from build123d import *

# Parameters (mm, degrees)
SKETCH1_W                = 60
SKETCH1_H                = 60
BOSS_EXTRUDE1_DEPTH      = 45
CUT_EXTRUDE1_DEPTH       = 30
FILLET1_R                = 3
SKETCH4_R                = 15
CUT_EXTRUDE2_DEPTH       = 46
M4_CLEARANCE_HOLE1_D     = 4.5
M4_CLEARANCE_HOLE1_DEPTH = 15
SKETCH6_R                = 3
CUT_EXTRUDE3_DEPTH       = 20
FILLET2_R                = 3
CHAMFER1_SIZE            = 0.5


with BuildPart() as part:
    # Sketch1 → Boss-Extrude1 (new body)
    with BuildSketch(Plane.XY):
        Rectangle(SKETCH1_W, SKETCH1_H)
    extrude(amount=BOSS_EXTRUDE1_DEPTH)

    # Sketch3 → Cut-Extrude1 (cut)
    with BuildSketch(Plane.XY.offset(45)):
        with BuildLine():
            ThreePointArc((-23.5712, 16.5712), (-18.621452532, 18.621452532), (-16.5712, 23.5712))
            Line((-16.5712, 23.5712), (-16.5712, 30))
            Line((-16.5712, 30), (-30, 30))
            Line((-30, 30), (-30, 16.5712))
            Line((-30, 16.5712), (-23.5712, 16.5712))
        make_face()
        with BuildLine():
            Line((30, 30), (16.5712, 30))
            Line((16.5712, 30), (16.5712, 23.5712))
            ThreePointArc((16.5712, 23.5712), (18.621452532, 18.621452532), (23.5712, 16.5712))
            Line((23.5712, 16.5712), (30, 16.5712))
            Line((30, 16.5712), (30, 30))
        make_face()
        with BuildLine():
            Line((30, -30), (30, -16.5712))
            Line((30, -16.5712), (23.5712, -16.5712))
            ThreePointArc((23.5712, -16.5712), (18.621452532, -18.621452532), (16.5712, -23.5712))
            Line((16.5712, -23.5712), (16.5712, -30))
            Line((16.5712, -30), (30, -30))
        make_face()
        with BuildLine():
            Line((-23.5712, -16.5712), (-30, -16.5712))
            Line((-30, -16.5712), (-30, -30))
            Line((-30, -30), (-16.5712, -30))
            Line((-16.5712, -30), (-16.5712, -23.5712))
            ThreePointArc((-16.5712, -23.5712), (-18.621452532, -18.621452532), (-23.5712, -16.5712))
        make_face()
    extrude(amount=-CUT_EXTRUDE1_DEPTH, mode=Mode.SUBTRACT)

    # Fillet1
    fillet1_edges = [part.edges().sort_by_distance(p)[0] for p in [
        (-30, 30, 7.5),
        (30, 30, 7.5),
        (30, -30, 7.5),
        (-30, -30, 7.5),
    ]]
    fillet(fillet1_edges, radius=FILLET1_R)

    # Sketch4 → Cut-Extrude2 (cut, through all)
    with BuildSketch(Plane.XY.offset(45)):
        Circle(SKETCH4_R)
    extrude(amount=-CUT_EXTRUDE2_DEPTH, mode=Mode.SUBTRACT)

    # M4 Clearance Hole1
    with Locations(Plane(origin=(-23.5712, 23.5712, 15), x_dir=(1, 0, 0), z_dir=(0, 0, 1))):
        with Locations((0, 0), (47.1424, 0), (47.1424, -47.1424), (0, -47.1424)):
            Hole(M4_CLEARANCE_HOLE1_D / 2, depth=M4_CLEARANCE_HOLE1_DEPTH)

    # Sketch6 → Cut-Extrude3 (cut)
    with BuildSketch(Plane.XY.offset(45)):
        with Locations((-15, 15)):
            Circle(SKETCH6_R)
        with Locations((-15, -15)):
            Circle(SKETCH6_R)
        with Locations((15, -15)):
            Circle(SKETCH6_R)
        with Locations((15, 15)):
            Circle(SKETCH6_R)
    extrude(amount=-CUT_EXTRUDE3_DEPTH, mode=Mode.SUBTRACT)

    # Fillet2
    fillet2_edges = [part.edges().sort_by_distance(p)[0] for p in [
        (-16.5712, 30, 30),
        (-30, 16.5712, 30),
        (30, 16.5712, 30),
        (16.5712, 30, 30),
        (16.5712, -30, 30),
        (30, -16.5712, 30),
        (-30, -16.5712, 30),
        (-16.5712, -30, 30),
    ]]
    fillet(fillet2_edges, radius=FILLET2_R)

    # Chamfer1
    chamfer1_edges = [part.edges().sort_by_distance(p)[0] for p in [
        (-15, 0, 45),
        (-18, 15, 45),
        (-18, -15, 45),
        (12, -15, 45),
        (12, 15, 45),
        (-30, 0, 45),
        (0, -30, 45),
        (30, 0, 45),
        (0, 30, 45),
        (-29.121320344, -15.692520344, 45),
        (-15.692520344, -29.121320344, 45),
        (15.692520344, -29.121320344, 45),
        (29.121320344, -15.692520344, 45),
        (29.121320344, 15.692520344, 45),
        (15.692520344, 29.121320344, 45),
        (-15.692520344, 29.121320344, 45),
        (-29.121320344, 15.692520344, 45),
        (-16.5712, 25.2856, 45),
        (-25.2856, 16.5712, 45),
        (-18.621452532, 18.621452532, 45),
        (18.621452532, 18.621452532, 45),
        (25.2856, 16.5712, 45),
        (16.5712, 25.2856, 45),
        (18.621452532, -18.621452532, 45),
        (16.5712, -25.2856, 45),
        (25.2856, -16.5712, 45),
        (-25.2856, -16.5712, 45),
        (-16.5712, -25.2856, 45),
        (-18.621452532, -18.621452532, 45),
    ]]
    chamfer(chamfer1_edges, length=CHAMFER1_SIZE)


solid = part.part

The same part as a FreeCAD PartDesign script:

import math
import FreeCAD as App
import Part
import Sketcher

V = App.Vector


def edges_at(feature, points):
    """Names of the edges that pass closest to the given points."""
    edges = feature.Shape.Edges
    near = lambda p: min(range(len(edges)), key=lambda i: edges[i].distToShape(Part.Vertex(*p))[0])
    return sorted({f"Edge{near(p) + 1}" for p in points})


def add_polygon(sketch, points):
    """Adds a closed chain of lines whose ends are joined by coincident constraints."""
    first, n = sketch.GeometryCount, len(points)
    for a, b in zip(points, points[1:] + points[:1]):
        sketch.addGeometry(Part.LineSegment(App.Vector(*a, 0), App.Vector(*b, 0)), False)
    for i in range(n):
        sketch.addConstraint(Sketcher.Constraint("Coincident", first + i, 2, first + (i + 1) % n, 1))

doc = App.newDocument("Part")
body = doc.addObject("PartDesign::Body", "Body")

sketch1 = doc.addObject("Sketcher::SketchObject", "Sketch")
body.addObject(sketch1)
sketch1.AttachmentSupport = (doc.XY_Plane, [""])
sketch1.MapMode = "FlatFace"
add_polygon(sketch1, [(-30, 30), (-30, -30), (30, -30), (30, 30)])
sketch1.addConstraint(Sketcher.Constraint("Vertical", 0))
sketch1.addConstraint(Sketcher.Constraint("Horizontal", 1))
sketch1.addConstraint(Sketcher.Constraint("Vertical", 2))
sketch1.addConstraint(Sketcher.Constraint("Horizontal", 3))
sketch1.addConstraint(Sketcher.Constraint("Symmetric", 0, 2, 2, 2, -1, 1))
sketch1.addConstraint(Sketcher.Constraint("Equal", 3, 0))
sketch1.addConstraint(Sketcher.Constraint("DistanceX", 1, 1, 1, 2, 60.0))
pad1 = doc.addObject("PartDesign::Pad", "Pad")
body.addObject(pad1)
pad1.Profile = sketch1
pad1.Length = 45

sketch2 = doc.addObject("Sketcher::SketchObject", "Sketch001")
body.addObject(sketch2)
sketch2.AttachmentSupport = (doc.XY_Plane, [""])
sketch2.MapMode = "FlatFace"
sketch2.AttachmentOffset = App.Placement(V(0, 0, 45), App.Rotation())
sketch2.addGeometry(Part.ArcOfCircle(Part.Circle(V(-24, 24, 0), V(0, 0, 1), 7), math.radians(-90), math.radians(0)), False)
sketch2.addGeometry(Part.LineSegment(V(-17, 24, 0), V(-17, 30, 0)), False)
sketch2.addGeometry(Part.LineSegment(V(-17, 30, 0), V(-30, 30, 0)), False)
sketch2.addGeometry(Part.LineSegment(V(-30, 30, 0), V(-30, 17, 0)), False)
sketch2.addGeometry(Part.LineSegment(V(-30, 17, 0), V(-24, 17, 0)), False)
sketch2.addGeometry(Part.LineSegment(V(30, 30, 0), V(17, 30, 0)), False)
sketch2.addGeometry(Part.LineSegment(V(17, 30, 0), V(17, 24, 0)), False)
sketch2.addGeometry(Part.ArcOfCircle(Part.Circle(V(24, 24, 0), V(0, 0, 1), 7), math.radians(-180), math.radians(-90)), False)
sketch2.addGeometry(Part.LineSegment(V(24, 17, 0), V(30, 17, 0)), False)
sketch2.addGeometry(Part.LineSegment(V(30, 17, 0), V(30, 30, 0)), False)
sketch2.addGeometry(Part.LineSegment(V(30, -30, 0), V(30, -17, 0)), False)
sketch2.addGeometry(Part.LineSegment(V(30, -17, 0), V(24, -17, 0)), False)
sketch2.addGeometry(Part.ArcOfCircle(Part.Circle(V(24, -24, 0), V(0, 0, 1), 7), math.radians(90), math.radians(180)), False)
sketch2.addGeometry(Part.LineSegment(V(17, -24, 0), V(17, -30, 0)), False)
sketch2.addGeometry(Part.LineSegment(V(17, -30, 0), V(30, -30, 0)), False)
sketch2.addGeometry(Part.LineSegment(V(-24, -17, 0), V(-30, -17, 0)), False)
sketch2.addGeometry(Part.LineSegment(V(-30, -17, 0), V(-30, -30, 0)), False)
sketch2.addGeometry(Part.LineSegment(V(-30, -30, 0), V(-17, -30, 0)), False)
sketch2.addGeometry(Part.LineSegment(V(-17, -30, 0), V(-17, -24, 0)), False)
sketch2.addGeometry(Part.ArcOfCircle(Part.Circle(V(-24, -24, 0), V(0, 0, 1), 7), math.radians(0), math.radians(90)), False)
sketch2.addConstraint(Sketcher.Constraint("Tangent", 0, 2, 1, 1))
sketch2.addConstraint(Sketcher.Constraint("Coincident", 1, 2, 2, 1))
sketch2.addConstraint(Sketcher.Constraint("Coincident", 2, 2, 3, 1))
sketch2.addConstraint(Sketcher.Constraint("Coincident", 3, 2, 4, 1))
sketch2.addConstraint(Sketcher.Constraint("Tangent", 4, 2, 0, 1))
sketch2.addConstraint(Sketcher.Constraint("Coincident", 5, 2, 6, 1))
sketch2.addConstraint(Sketcher.Constraint("Tangent", 6, 2, 7, 1))
sketch2.addConstraint(Sketcher.Constraint("Tangent", 7, 2, 8, 1))
sketch2.addConstraint(Sketcher.Constraint("Coincident", 8, 2, 9, 1))
sketch2.addConstraint(Sketcher.Constraint("Coincident", 9, 2, 5, 1))
sketch2.addConstraint(Sketcher.Constraint("Coincident", 10, 2, 11, 1))
sketch2.addConstraint(Sketcher.Constraint("Tangent", 11, 2, 12, 1))
sketch2.addConstraint(Sketcher.Constraint("Tangent", 12, 2, 13, 1))
sketch2.addConstraint(Sketcher.Constraint("Coincident", 13, 2, 14, 1))
sketch2.addConstraint(Sketcher.Constraint("Coincident", 14, 2, 10, 1))
sketch2.addConstraint(Sketcher.Constraint("Coincident", 15, 2, 16, 1))
sketch2.addConstraint(Sketcher.Constraint("Coincident", 16, 2, 17, 1))
sketch2.addConstraint(Sketcher.Constraint("Coincident", 17, 2, 18, 1))
sketch2.addConstraint(Sketcher.Constraint("Tangent", 18, 2, 19, 1))
sketch2.addConstraint(Sketcher.Constraint("Tangent", 19, 2, 15, 1))
sketch2.addConstraint(Sketcher.Constraint("Vertical", 1))
sketch2.addConstraint(Sketcher.Constraint("Horizontal", 2))
sketch2.addConstraint(Sketcher.Constraint("Vertical", 3))
sketch2.addConstraint(Sketcher.Constraint("Horizontal", 4))
sketch2.addConstraint(Sketcher.Constraint("Horizontal", 5))
sketch2.addConstraint(Sketcher.Constraint("Vertical", 6))
sketch2.addConstraint(Sketcher.Constraint("Horizontal", 8))
sketch2.addConstraint(Sketcher.Constraint("Vertical", 9))
sketch2.addConstraint(Sketcher.Constraint("Vertical", 10))
sketch2.addConstraint(Sketcher.Constraint("Horizontal", 11))
sketch2.addConstraint(Sketcher.Constraint("Vertical", 13))
sketch2.addConstraint(Sketcher.Constraint("Horizontal", 14))
sketch2.addConstraint(Sketcher.Constraint("Horizontal", 15))
sketch2.addConstraint(Sketcher.Constraint("Vertical", 16))
sketch2.addConstraint(Sketcher.Constraint("Horizontal", 17))
sketch2.addConstraint(Sketcher.Constraint("Vertical", 18))
sketch2.addConstraint(Sketcher.Constraint("Equal", 0, 7))
sketch2.addConstraint(Sketcher.Constraint("Equal", 7, 12))
sketch2.addConstraint(Sketcher.Constraint("Equal", 12, 19))
sketch2.addConstraint(Sketcher.Constraint("Symmetric", 0, 3, 12, 3, -1, 1))
sketch2.addConstraint(Sketcher.Constraint("Symmetric", 7, 3, 19, 3, -1, 1))
sketch2.addConstraint(Sketcher.Constraint("Symmetric", 2, 2, 14, 2, -1, 1))
sketch2.addConstraint(Sketcher.Constraint("Symmetric", 9, 2, 16, 2, -1, 1))
sketch2.addConstraint(Sketcher.Constraint("Symmetric", 0, 3, 7, 3, -2))
sketch2.addConstraint(Sketcher.Constraint("Symmetric", 2, 2, 9, 2, -2))
sketch2.addConstraint(Sketcher.Constraint("Equal", 15, 1))
sketch2.addConstraint(Sketcher.Constraint("Radius", 0, 7.0))
sketch2.addConstraint(Sketcher.Constraint("DistanceY", -1, 1, 1, 2, 30.0))
sketch2.addConstraint(Sketcher.Constraint("DistanceX", 2, 2, -1, 1, 30.0))
sketch2.addConstraint(Sketcher.Constraint("DistanceX", 2, 2, 2, 1, 13.4288))
pocket1 = doc.addObject("PartDesign::Pocket", "Pocket")
body.addObject(pocket1)
pocket1.Profile = sketch2
pocket1.Length = 30
doc.recompute()

fillet = doc.addObject("PartDesign::Fillet", "Fillet")
body.addObject(fillet)
fillet.Base = (pocket1, edges_at(pocket1, [
    (-30, 30, 7.5),
    (30, 30, 7.5),
    (30, -30, 7.5),
    (-30, -30, 7.5),
]))
fillet.Radius = 3

sketch3 = doc.addObject("Sketcher::SketchObject", "Sketch002")
body.addObject(sketch3)
sketch3.AttachmentSupport = (doc.XY_Plane, [""])
sketch3.MapMode = "FlatFace"
sketch3.AttachmentOffset = App.Placement(V(0, 0, 45), App.Rotation())
sketch3.addGeometry(Part.Circle(V(0, 0, 0), V(0, 0, 1), 15), False)
sketch3.addConstraint(Sketcher.Constraint("Coincident", 0, 3, -1, 1))
sketch3.addConstraint(Sketcher.Constraint("Diameter", 0, 30.0))
pocket2 = doc.addObject("PartDesign::Pocket", "Pocket001")
body.addObject(pocket2)
pocket2.Profile = sketch3
pocket2.Type = "ThroughAll"

sketch4 = doc.addObject("Sketcher::SketchObject", "Sketch003")
body.addObject(sketch4)
sketch4.AttachmentSupport = (doc.XY_Plane, [""])
sketch4.MapMode = "FlatFace"
sketch4.AttachmentOffset = App.Placement(V(0, 0, 15), App.Rotation())
sketch4.addGeometry(Part.Circle(V(-23.6, 23.6, 0), V(0, 0, 1), 2.2), False)
sketch4.addGeometry(Part.Circle(V(23.6, 23.6, 0), V(0, 0, 1), 2.2), False)
sketch4.addGeometry(Part.Circle(V(23.6, -23.6, 0), V(0, 0, 1), 2.2), False)
sketch4.addGeometry(Part.Circle(V(-23.6, -23.6, 0), V(0, 0, 1), 2.2), False)
sketch4.addConstraint(Sketcher.Constraint("Equal", 0, 1))
sketch4.addConstraint(Sketcher.Constraint("Equal", 1, 2))
sketch4.addConstraint(Sketcher.Constraint("Equal", 2, 3))
sketch4.addConstraint(Sketcher.Constraint("Symmetric", 0, 3, 2, 3, -1, 1))
sketch4.addConstraint(Sketcher.Constraint("Symmetric", 1, 3, 3, 3, -1, 1))
sketch4.addConstraint(Sketcher.Constraint("Symmetric", 0, 3, 1, 3, -2))
sketch4.addConstraint(Sketcher.Constraint("Diameter", 0, 4.5))
sketch4.addConstraint(Sketcher.Constraint("DistanceX", 0, 3, -1, 1, 23.5712))
sketch4.addConstraint(Sketcher.Constraint("DistanceY", -1, 1, 0, 3, 23.5712))
doc.recompute()
hole = doc.addObject("PartDesign::Hole", "Hole")
body.addObject(hole)
hole.Profile = sketch4
hole.ThreadType = "None"
hole.Diameter = 4.5
hole.DepthType = "Dimension"
hole.Depth = 15
hole.DrillPoint = "Flat"

sketch5 = doc.addObject("Sketcher::SketchObject", "Sketch004")
body.addObject(sketch5)
sketch5.AttachmentSupport = (doc.XY_Plane, [""])
sketch5.MapMode = "FlatFace"
sketch5.AttachmentOffset = App.Placement(V(0, 0, 45), App.Rotation())
sketch5.addGeometry(Part.Circle(V(-15, 15, 0), V(0, 0, 1), 3), False)
sketch5.addGeometry(Part.Circle(V(-15, -15, 0), V(0, 0, 1), 3), False)
sketch5.addGeometry(Part.Circle(V(15, -15, 0), V(0, 0, 1), 3), False)
sketch5.addGeometry(Part.Circle(V(15, 15, 0), V(0, 0, 1), 3), False)
sketch5.addConstraint(Sketcher.Constraint("Equal", 0, 1))
sketch5.addConstraint(Sketcher.Constraint("Equal", 1, 2))
sketch5.addConstraint(Sketcher.Constraint("Equal", 2, 3))
sketch5.addConstraint(Sketcher.Constraint("Symmetric", 0, 3, 2, 3, -1, 1))
sketch5.addConstraint(Sketcher.Constraint("Symmetric", 1, 3, 3, 3, -1, 1))
sketch5.addConstraint(Sketcher.Constraint("Symmetric", 1, 3, 2, 3, -2))
sketch5.addConstraint(Sketcher.Constraint("Diameter", 0, 6.0))
sketch5.addConstraint(Sketcher.Constraint("DistanceX", 0, 3, -1, 1, 15.0))
sketch5.addConstraint(Sketcher.Constraint("DistanceY", -1, 1, 0, 3, 15.0))
pocket3 = doc.addObject("PartDesign::Pocket", "Pocket002")
body.addObject(pocket3)
pocket3.Profile = sketch5
pocket3.Length = 20
doc.recompute()

fillet2 = doc.addObject("PartDesign::Fillet", "Fillet001")
body.addObject(fillet2)
fillet2.Base = (pocket3, edges_at(pocket3, [
    (-16.571, 30, 30),
    (-30, 16.571, 30),
    (30, 16.571, 30),
    (16.571, 30, 30),
    (16.571, -30, 30),
    (30, -16.571, 30),
    (-30, -16.571, 30),
    (-16.571, -30, 30),
]))
fillet2.Radius = 3
doc.recompute()

chamfer = doc.addObject("PartDesign::Chamfer", "Chamfer")
body.addObject(chamfer)
chamfer.Base = (fillet2, edges_at(fillet2, [
    (-15, 0, 45),
    (-18, 15, 45),
    (-18, -15, 45),
    (12, -15, 45),
    (12, 15, 45),
    (-30, 0, 45),
    (0, -30, 45),
    (30, 0, 45),
    (0, 30, 45),
    (-29.121, -15.693, 45),
    (-15.693, -29.121, 45),
    (15.693, -29.121, 45),
    (29.121, -15.693, 45),
    (29.121, 15.693, 45),
    (15.693, 29.121, 45),
    (-15.693, 29.121, 45),
    (-29.121, 15.693, 45),
    (-16.571, 25.286, 45),
    (-25.286, 16.571, 45),
    (-18.621, 18.621, 45),
    (18.621, 18.621, 45),
    (25.286, 16.571, 45),
    (16.571, 25.286, 45),
    (18.621, -18.621, 45),
    (16.571, -25.286, 45),
    (25.286, -16.571, 45),
    (-25.286, -16.571, 45),
    (-16.571, -25.286, 45),
    (-18.621, -18.621, 45),
]))
chamfer.Size = 0.5

doc.recompute()
